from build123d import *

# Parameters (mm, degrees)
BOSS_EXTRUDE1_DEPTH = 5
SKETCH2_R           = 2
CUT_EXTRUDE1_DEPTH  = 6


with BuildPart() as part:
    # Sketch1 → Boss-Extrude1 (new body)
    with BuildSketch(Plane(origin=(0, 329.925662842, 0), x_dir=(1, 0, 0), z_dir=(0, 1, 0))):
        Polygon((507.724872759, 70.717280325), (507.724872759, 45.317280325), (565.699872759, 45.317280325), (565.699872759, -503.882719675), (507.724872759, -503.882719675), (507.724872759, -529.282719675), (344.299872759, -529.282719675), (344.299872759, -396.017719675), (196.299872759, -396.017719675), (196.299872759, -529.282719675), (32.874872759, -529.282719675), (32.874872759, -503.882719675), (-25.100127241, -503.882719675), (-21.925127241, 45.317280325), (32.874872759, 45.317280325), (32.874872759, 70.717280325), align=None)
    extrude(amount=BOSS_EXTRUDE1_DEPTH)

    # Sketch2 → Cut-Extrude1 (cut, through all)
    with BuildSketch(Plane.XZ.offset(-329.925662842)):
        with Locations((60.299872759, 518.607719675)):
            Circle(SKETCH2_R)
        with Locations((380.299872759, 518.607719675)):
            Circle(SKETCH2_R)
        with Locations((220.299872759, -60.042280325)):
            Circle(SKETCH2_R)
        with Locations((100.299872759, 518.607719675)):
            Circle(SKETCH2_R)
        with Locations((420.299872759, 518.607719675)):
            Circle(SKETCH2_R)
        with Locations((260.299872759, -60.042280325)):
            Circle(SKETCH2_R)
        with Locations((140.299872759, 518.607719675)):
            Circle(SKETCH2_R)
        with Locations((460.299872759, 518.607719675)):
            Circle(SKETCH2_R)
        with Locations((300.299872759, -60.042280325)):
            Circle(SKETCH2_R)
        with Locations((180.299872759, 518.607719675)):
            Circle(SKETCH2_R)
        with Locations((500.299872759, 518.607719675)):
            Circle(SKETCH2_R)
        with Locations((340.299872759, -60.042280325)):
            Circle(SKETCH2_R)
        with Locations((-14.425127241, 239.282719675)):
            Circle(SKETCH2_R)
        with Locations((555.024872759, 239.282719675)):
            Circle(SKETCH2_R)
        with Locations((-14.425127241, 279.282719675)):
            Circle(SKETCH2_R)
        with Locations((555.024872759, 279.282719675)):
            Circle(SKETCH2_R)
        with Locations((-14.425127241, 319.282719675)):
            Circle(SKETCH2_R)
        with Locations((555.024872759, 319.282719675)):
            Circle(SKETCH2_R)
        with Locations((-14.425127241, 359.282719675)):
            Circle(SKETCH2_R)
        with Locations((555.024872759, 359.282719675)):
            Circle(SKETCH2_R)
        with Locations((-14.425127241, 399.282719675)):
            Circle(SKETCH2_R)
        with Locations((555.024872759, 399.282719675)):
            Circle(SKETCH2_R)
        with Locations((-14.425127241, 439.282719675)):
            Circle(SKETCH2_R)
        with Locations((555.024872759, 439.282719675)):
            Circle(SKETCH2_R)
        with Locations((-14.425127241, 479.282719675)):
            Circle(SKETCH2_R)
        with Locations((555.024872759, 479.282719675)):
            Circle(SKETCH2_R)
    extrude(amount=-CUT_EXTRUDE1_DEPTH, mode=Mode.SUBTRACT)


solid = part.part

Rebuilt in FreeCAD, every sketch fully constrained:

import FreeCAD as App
import Part
import Sketcher

doc = App.newDocument("Part")
body = doc.addObject("PartDesign::Body", "Body")

# Sketch on XZ plane
sketch1 = body.newObject("Sketcher::SketchObject", "Sketch")
sketch1.AttachmentSupport = (doc.getObject("XZ_Plane"), [""])
sketch1.MapMode = "FlatFace"
sketch1.AttachmentOffset = App.Placement(App.Vector(0, 0, -329.925663), App.Rotation())
sketch1.addGeometry(Part.LineSegment(App.Vector(507.724873, -45.31728, 0), App.Vector(507.724873, -70.71728, 0)), False)
sketch1.addGeometry(Part.LineSegment(App.Vector(507.724873, -70.71728, 0), App.Vector(32.874873, -70.71728, 0)), False)
sketch1.addGeometry(Part.LineSegment(App.Vector(32.874873, -70.71728, 0), App.Vector(32.874873, -45.31728, 0)), False)
sketch1.addGeometry(Part.LineSegment(App.Vector(32.874873, -45.31728, 0), App.Vector(-21.925127, -45.31728, 0)), False)
sketch1.addGeometry(Part.LineSegment(App.Vector(-21.925127, -45.31728, 0), App.Vector(-25.100127, 503.88272, 0)), False)
sketch1.addGeometry(Part.LineSegment(App.Vector(-25.100127, 503.88272, 0), App.Vector(32.874873, 503.88272, 0)), False)
sketch1.addGeometry(Part.LineSegment(App.Vector(32.874873, 503.88272, 0), App.Vector(32.874873, 529.28272, 0)), False)
sketch1.addGeometry(Part.LineSegment(App.Vector(32.874873, 529.28272, 0), App.Vector(196.299873, 529.28272, 0)), False)
sketch1.addGeometry(Part.LineSegment(App.Vector(196.299873, 529.28272, 0), App.Vector(196.299873, 396.01772, 0)), False)
sketch1.addGeometry(Part.LineSegment(App.Vector(196.299873, 396.01772, 0), App.Vector(344.299873, 396.01772, 0)), False)
sketch1.addGeometry(Part.LineSegment(App.Vector(344.299873, 396.01772, 0), App.Vector(344.299873, 529.28272, 0)), False)
sketch1.addGeometry(Part.LineSegment(App.Vector(344.299873, 529.28272, 0), App.Vector(507.724873, 529.28272, 0)), False)
sketch1.addGeometry(Part.LineSegment(App.Vector(507.724873, 529.28272, 0), App.Vector(507.724873, 503.88272, 0)), False)
sketch1.addGeometry(Part.LineSegment(App.Vector(507.724873, 503.88272, 0), App.Vector(565.699873, 503.88272, 0)), False)
sketch1.addGeometry(Part.LineSegment(App.Vector(565.699873, 503.88272, 0), App.Vector(565.699873, -45.31728, 0)), False)
sketch1.addGeometry(Part.LineSegment(App.Vector(565.699873, -45.31728, 0), App.Vector(507.724873, -45.31728, 0)), False)
sketch1.addConstraint(Sketcher.Constraint("Coincident", 0, 2, 1, 1))
sketch1.addConstraint(Sketcher.Constraint("Coincident", 1, 2, 2, 1))
sketch1.addConstraint(Sketcher.Constraint("Coincident", 2, 2, 3, 1))
sketch1.addConstraint(Sketcher.Constraint("Coincident", 3, 2, 4, 1))
sketch1.addConstraint(Sketcher.Constraint("Coincident", 4, 2, 5, 1))
sketch1.addConstraint(Sketcher.Constraint("Coincident", 5, 2, 6, 1))
sketch1.addConstraint(Sketcher.Constraint("Coincident", 6, 2, 7, 1))
sketch1.addConstraint(Sketcher.Constraint("Coincident", 7, 2, 8, 1))
sketch1.addConstraint(Sketcher.Constraint("Coincident", 8, 2, 9, 1))
sketch1.addConstraint(Sketcher.Constraint("Coincident", 9, 2, 10, 1))
sketch1.addConstraint(Sketcher.Constraint("Coincident", 10, 2, 11, 1))
sketch1.addConstraint(Sketcher.Constraint("Coincident", 11, 2, 12, 1))
sketch1.addConstraint(Sketcher.Constraint("Coincident", 12, 2, 13, 1))
sketch1.addConstraint(Sketcher.Constraint("Coincident", 13, 2, 14, 1))
sketch1.addConstraint(Sketcher.Constraint("Coincident", 14, 2, 15, 1))
sketch1.addConstraint(Sketcher.Constraint("Coincident", 15, 2, 0, 1))
sketch1.addConstraint(Sketcher.Constraint("Vertical", 0))
sketch1.addConstraint(Sketcher.Constraint("Horizontal", 1))
sketch1.addConstraint(Sketcher.Constraint("Vertical", 2))
sketch1.addConstraint(Sketcher.Constraint("Horizontal", 3))
sketch1.addConstraint(Sketcher.Constraint("Horizontal", 5))
sketch1.addConstraint(Sketcher.Constraint("Vertical", 6))
sketch1.addConstraint(Sketcher.Constraint("Horizontal", 7))
sketch1.addConstraint(Sketcher.Constraint("Vertical", 8))
sketch1.addConstraint(Sketcher.Constraint("Horizontal", 9))
sketch1.addConstraint(Sketcher.Constraint("Vertical", 10))
sketch1.addConstraint(Sketcher.Constraint("Horizontal", 11))
sketch1.addConstraint(Sketcher.Constraint("Vertical", 12))
sketch1.addConstraint(Sketcher.Constraint("Horizontal", 13))
sketch1.addConstraint(Sketcher.Constraint("Vertical", 14))
sketch1.addConstraint(Sketcher.Constraint("Horizontal", 15))
sketch1.addConstraint(Sketcher.Constraint("Horizontal", 7, 2, 10, 2))
sketch1.addConstraint(Sketcher.Constraint("Horizontal", 5, 2, 12, 2))
sketch1.addConstraint(Sketcher.Constraint("Horizontal", 3, 2, 14, 2))
sketch1.addConstraint(Sketcher.Constraint("Vertical", 2, 2, 5, 2))
sketch1.addConstraint(Sketcher.Constraint("Vertical", 0, 2, 11, 2))
sketch1.addConstraint(Sketcher.Constraint("Equal", 7, 11))
sketch1.addConstraint(Sketcher.Constraint("Equal", 5, 13))
sketch1.addConstraint(Sketcher.Constraint("Equal", 2, 6))
sketch1.addConstraint(Sketcher.Constraint("DistanceX", 9, 1, 9, 2, 148.0))
sketch1.addConstraint(Sketcher.Constraint("DistanceX", 3, 2, 3, 1, 54.8))
sketch1.addConstraint(Sketcher.Constraint("DistanceY", 0, 2, 0, 1, 25.4))
sketch1.addConstraint(Sketcher.Constraint("DistanceY", 14, 2, 14, 1, 549.2))
sketch1.addConstraint(Sketcher.Constraint("DistanceX", 1, 2, 1, 1, 474.85))
sketch1.addConstraint(Sketcher.Constraint("DistanceX", 4, 2, 7, 2, 221.4))
sketch1.addConstraint(Sketcher.Constraint("DistanceY", 8, 2, 8, 1, 133.265))
sketch1.addConstraint(Sketcher.Constraint("DistanceY", 0, 2, -1, 1, 70.71728))
sketch1.addConstraint(Sketcher.Constraint("DistanceX", -1, 1, 0, 2, 507.724873))
pad1 = body.newObject("PartDesign::Pad", "Pad")
pad1.Profile = sketch1
pad1.Length = 5
pad1.Reversed = True

# Sketch on XZ plane
sketch2 = body.newObject("Sketcher::SketchObject", "Sketch001")
sketch2.AttachmentSupport = (doc.getObject("XZ_Plane"), [""])
sketch2.MapMode = "FlatFace"
sketch2.AttachmentOffset = App.Placement(App.Vector(0, 0, -329.925663), App.Rotation())
sketch2.addGeometry(Part.Circle(App.Vector(60.299873, 518.60772, 0), App.Vector(0, 0, 1), 2), False)
sketch2.addGeometry(Part.Circle(App.Vector(380.299873, 518.60772, 0), App.Vector(0, 0, 1), 2), False)
sketch2.addGeometry(Part.Circle(App.Vector(220.299873, -60.04228, 0), App.Vector(0, 0, 1), 2), False)
sketch2.addGeometry(Part.Circle(App.Vector(100.299873, 518.60772, 0), App.Vector(0, 0, 1), 2), False)
sketch2.addGeometry(Part.Circle(App.Vector(420.299873, 518.60772, 0), App.Vector(0, 0, 1), 2), False)
sketch2.addGeometry(Part.Circle(App.Vector(260.299873, -60.04228, 0), App.Vector(0, 0, 1), 2), False)
sketch2.addGeometry(Part.Circle(App.Vector(140.299873, 518.60772, 0), App.Vector(0, 0, 1), 2), False)
sketch2.addGeometry(Part.Circle(App.Vector(460.299873, 518.60772, 0), App.Vector(0, 0, 1), 2), False)
sketch2.addGeometry(Part.Circle(App.Vector(300.299873, -60.04228, 0), App.Vector(0, 0, 1), 2), False)
sketch2.addGeometry(Part.Circle(App.Vector(180.299873, 518.60772, 0), App.Vector(0, 0, 1), 2), False)
sketch2.addGeometry(Part.Circle(App.Vector(500.299873, 518.60772, 0), App.Vector(0, 0, 1), 2), False)
sketch2.addGeometry(Part.Circle(App.Vector(340.299873, -60.04228, 0), App.Vector(0, 0, 1), 2), False)
sketch2.addGeometry(Part.Circle(App.Vector(-14.425127, 239.28272, 0), App.Vector(0, 0, 1), 2), False)
sketch2.addGeometry(Part.Circle(App.Vector(555.024873, 239.28272, 0), App.Vector(0, 0, 1), 2), False)
sketch2.addGeometry(Part.Circle(App.Vector(-14.425127, 279.28272, 0), App.Vector(0, 0, 1), 2), False)
sketch2.addGeometry(Part.Circle(App.Vector(555.024873, 279.28272, 0), App.Vector(0, 0, 1), 2), False)
sketch2.addGeometry(Part.Circle(App.Vector(-14.425127, 319.28272, 0), App.Vector(0, 0, 1), 2), False)
sketch2.addGeometry(Part.Circle(App.Vector(555.024873, 319.28272, 0), App.Vector(0, 0, 1), 2), False)
sketch2.addGeometry(Part.Circle(App.Vector(-14.425127, 359.28272, 0), App.Vector(0, 0, 1), 2), False)
sketch2.addGeometry(Part.Circle(App.Vector(555.024873, 359.28272, 0), App.Vector(0, 0, 1), 2), False)
sketch2.addGeometry(Part.Circle(App.Vector(-14.425127, 399.28272, 0), App.Vector(0, 0, 1), 2), False)
sketch2.addGeometry(Part.Circle(App.Vector(555.024873, 399.28272, 0), App.Vector(0, 0, 1), 2), False)
sketch2.addGeometry(Part.Circle(App.Vector(-14.425127, 439.28272, 0), App.Vector(0, 0, 1), 2), False)
sketch2.addGeometry(Part.Circle(App.Vector(555.024873, 439.28272, 0), App.Vector(0, 0, 1), 2), False)
sketch2.addGeometry(Part.Circle(App.Vector(-14.425127, 479.28272, 0), App.Vector(0, 0, 1), 2), False)
sketch2.addGeometry(Part.Circle(App.Vector(555.024873, 479.28272, 0), App.Vector(0, 0, 1), 2), False)
sketch2.addConstraint(Sketcher.Constraint("Equal", 0, 1))
sketch2.addConstraint(Sketcher.Constraint("Equal", 1, 2))
sketch2.addConstraint(Sketcher.Constraint("Equal", 2, 3))
sketch2.addConstraint(Sketcher.Constraint("Equal", 3, 4))
sketch2.addConstraint(Sketcher.Constraint("Equal", 4, 5))
sketch2.addConstraint(Sketcher.Constraint("Equal", 5, 6))
sketch2.addConstraint(Sketcher.Constraint("Equal", 6, 7))
sketch2.addConstraint(Sketcher.Constraint("Equal", 7, 8))
sketch2.addConstraint(Sketcher.Constraint("Equal", 8, 9))
sketch2.addConstraint(Sketcher.Constraint("Equal", 9, 10))
sketch2.addConstraint(Sketcher.Constraint("Equal", 10, 11))
sketch2.addConstraint(Sketcher.Constraint("Equal", 11, 12))
sketch2.addConstraint(Sketcher.Constraint("Equal", 12, 13))
sketch2.addConstraint(Sketcher.Constraint("Equal", 13, 14))
sketch2.addConstraint(Sketcher.Constraint("Equal", 14, 15))
sketch2.addConstraint(Sketcher.Constraint("Equal", 15, 16))
sketch2.addConstraint(Sketcher.Constraint("Equal", 16, 17))
sketch2.addConstraint(Sketcher.Constraint("Equal", 17, 18))
sketch2.addConstraint(Sketcher.Constraint("Equal", 18, 19))
sketch2.addConstraint(Sketcher.Constraint("Equal", 19, 20))
sketch2.addConstraint(Sketcher.Constraint("Equal", 20, 21))
sketch2.addConstraint(Sketcher.Constraint("Equal", 21, 22))
sketch2.addConstraint(Sketcher.Constraint("Equal", 22, 23))
sketch2.addConstraint(Sketcher.Constraint("Equal", 23, 24))
sketch2.addConstraint(Sketcher.Constraint("Equal", 24, 25))
sketch2.addConstraint(Sketcher.Constraint("Horizontal", 0, 3, 1, 3))
sketch2.addConstraint(Sketcher.Constraint("Horizontal", 1, 3, 3, 3))
sketch2.addConstraint(Sketcher.Constraint("Horizontal", 3, 3, 4, 3))
sketch2.addConstraint(Sketcher.Constraint("Horizontal", 2, 3, 5, 3))
sketch2.addConstraint(Sketcher.Constraint("Horizontal", 4, 3, 6, 3))
sketch2.addConstraint(Sketcher.Constraint("Horizontal", 6, 3, 7, 3))
sketch2.addConstraint(Sketcher.Constraint("Horizontal", 5, 3, 8, 3))
sketch2.addConstraint(Sketcher.Constraint("Horizontal", 7, 3, 9, 3))
sketch2.addConstraint(Sketcher.Constraint("Horizontal", 9, 3, 10, 3))
sketch2.addConstraint(Sketcher.Constraint("Horizontal", 8, 3, 11, 3))
sketch2.addConstraint(Sketcher.Constraint("Horizontal", 12, 3, 13, 3))
sketch2.addConstraint(Sketcher.Constraint("Horizontal", 14, 3, 15, 3))
sketch2.addConstraint(Sketcher.Constraint("Horizontal", 16, 3, 17, 3))
sketch2.addConstraint(Sketcher.Constraint("Horizontal", 18, 3, 19, 3))
sketch2.addConstraint(Sketcher.Constraint("Horizontal", 20, 3, 21, 3))
sketch2.addConstraint(Sketcher.Constraint("Horizontal", 22, 3, 23, 3))
sketch2.addConstraint(Sketcher.Constraint("Horizontal", 24, 3, 25, 3))
sketch2.addConstraint(Sketcher.Constraint("Vertical", 12, 3, 14, 3))
sketch2.addConstraint(Sketcher.Constraint("Vertical", 13, 3, 15, 3))
sketch2.addConstraint(Sketcher.Constraint("Vertical", 14, 3, 16, 3))
sketch2.addConstraint(Sketcher.Constraint("Vertical", 15, 3, 17, 3))
sketch2.addConstraint(Sketcher.Constraint("Vertical", 16, 3, 18, 3))
sketch2.addConstraint(Sketcher.Constraint("Vertical", 17, 3, 19, 3))
sketch2.addConstraint(Sketcher.Constraint("Vertical", 18, 3, 20, 3))
sketch2.addConstraint(Sketcher.Constraint("Vertical", 19, 3, 21, 3))
sketch2.addConstraint(Sketcher.Constraint("Vertical", 20, 3, 22, 3))
sketch2.addConstraint(Sketcher.Constraint("Vertical", 21, 3, 23, 3))
sketch2.addConstraint(Sketcher.Constraint("Vertical", 22, 3, 24, 3))
sketch2.addConstraint(Sketcher.Constraint("Vertical", 23, 3, 25, 3))
sketch2.addConstraint(Sketcher.Constraint("Diameter", 0, 4.0))
sketch2.addConstraint(Sketcher.Constraint("DistanceX", 0, 3, 1, 3, 320.0))
sketch2.addConstraint(Sketcher.Constraint("DistanceX", 0, 3, 2, 3, 160.0))
sketch2.addConstraint(Sketcher.Constraint("DistanceX", 0, 3, 3, 3, 40.0))
sketch2.addConstraint(Sketcher.Constraint("DistanceX", 1, 3, 4, 3, 40.0))
sketch2.addConstraint(Sketcher.Constraint("DistanceX", 2, 3, 5, 3, 40.0))
sketch2.addConstraint(Sketcher.Constraint("DistanceX", 3, 3, 6, 3, 40.0))
sketch2.addConstraint(Sketcher.Constraint("DistanceX", 4, 3, 7, 3, 40.0))
sketch2.addConstraint(Sketcher.Constraint("DistanceX", 5, 3, 8, 3, 40.0))
sketch2.addConstraint(Sketcher.Constraint("DistanceX", 6, 3, 9, 3, 40.0))
sketch2.addConstraint(Sketcher.Constraint("DistanceX", 7, 3, 10, 3, 40.0))
sketch2.addConstraint(Sketcher.Constraint("DistanceX", 8, 3, 11, 3, 40.0))
sketch2.addConstraint(Sketcher.Constraint("DistanceY", 12, 3, 14, 3, 40.0))
sketch2.addConstraint(Sketcher.Constraint("DistanceY", 14, 3, 16, 3, 40.0))
sketch2.addConstraint(Sketcher.Constraint("DistanceY", 16, 3, 18, 3, 40.0))
sketch2.addConstraint(Sketcher.Constraint("DistanceY", 18, 3, 20, 3, 40.0))
sketch2.addConstraint(Sketcher.Constraint("DistanceY", 20, 3, 22, 3, 40.0))
sketch2.addConstraint(Sketcher.Constraint("DistanceY", 22, 3, 24, 3, 40.0))
sketch2.addConstraint(Sketcher.Constraint("DistanceY", 2, 3, 0, 3, 578.65))
sketch2.addConstraint(Sketcher.Constraint("DistanceX", 12, 3, 0, 3, 74.725))
sketch2.addConstraint(Sketcher.Constraint("DistanceY", 12, 3, 0, 3, 279.325))
sketch2.addConstraint(Sketcher.Constraint("DistanceX", 10, 3, 13, 3, 54.725))
sketch2.addConstraint(Sketcher.Constraint("DistanceY", -1, 1, 0, 3, 518.60772))
sketch2.addConstraint(Sketcher.Constraint("DistanceX", -1, 1, 0, 3, 60.299873))
pocket1 = body.newObject("PartDesign::Pocket", "Pocket")
pocket1.Profile = sketch2
pocket1.Type = "ThroughAll"

doc.recompute()
